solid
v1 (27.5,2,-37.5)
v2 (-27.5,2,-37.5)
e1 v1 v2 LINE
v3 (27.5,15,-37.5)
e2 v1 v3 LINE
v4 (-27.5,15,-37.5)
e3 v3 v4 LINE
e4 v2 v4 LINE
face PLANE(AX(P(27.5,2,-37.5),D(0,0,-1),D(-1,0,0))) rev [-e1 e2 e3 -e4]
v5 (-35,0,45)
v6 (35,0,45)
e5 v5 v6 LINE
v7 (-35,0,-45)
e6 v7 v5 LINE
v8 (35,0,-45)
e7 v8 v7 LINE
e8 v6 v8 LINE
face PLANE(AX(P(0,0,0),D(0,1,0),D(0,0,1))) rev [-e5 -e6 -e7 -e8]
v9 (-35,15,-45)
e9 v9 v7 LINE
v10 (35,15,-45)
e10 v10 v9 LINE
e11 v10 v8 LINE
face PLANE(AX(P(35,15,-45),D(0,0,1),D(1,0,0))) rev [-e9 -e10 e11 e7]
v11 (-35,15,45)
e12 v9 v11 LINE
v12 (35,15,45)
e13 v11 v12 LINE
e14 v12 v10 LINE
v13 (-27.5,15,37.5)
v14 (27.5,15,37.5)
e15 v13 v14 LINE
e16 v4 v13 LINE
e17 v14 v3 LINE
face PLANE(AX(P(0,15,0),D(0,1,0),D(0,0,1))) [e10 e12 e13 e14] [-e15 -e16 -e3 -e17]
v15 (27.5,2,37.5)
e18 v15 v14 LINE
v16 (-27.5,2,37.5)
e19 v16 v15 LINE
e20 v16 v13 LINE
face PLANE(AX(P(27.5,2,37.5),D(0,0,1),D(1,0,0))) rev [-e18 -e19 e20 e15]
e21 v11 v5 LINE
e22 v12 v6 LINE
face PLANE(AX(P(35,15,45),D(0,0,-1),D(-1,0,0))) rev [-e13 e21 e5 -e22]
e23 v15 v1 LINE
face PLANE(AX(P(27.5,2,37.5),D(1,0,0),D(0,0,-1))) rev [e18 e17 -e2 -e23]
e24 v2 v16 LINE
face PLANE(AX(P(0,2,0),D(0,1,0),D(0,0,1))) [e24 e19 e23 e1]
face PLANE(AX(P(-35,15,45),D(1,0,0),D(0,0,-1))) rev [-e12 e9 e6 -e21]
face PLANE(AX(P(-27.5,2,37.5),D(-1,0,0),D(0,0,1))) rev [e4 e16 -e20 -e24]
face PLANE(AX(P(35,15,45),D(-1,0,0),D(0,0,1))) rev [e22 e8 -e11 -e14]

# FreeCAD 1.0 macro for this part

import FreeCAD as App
import Part
import Sketcher

V = App.Vector


def add_polygon(sketch, points):
    """Adds a closed chain of lines whose ends are joined by coincident constraints."""
    first, n = sketch.GeometryCount, len(points)
    for a, b in zip(points, points[1:] + points[:1]):
        sketch.addGeometry(Part.LineSegment(App.Vector(*a, 0), App.Vector(*b, 0)), False)
    for i in range(n):
        sketch.addConstraint(Sketcher.Constraint("Coincident", first + i, 2, first + (i + 1) % n, 1))

doc = App.newDocument("Part")
body = doc.addObject("PartDesign::Body", "Body")

# Sketch on XZ plane
sketch1 = body.newObject("Sketcher::SketchObject", "Sketch")
sketch1.AttachmentSupport = (doc.getObject("XZ_Plane"), [""])
sketch1.MapMode = "FlatFace"
add_polygon(sketch1, [(-35, -45), (-35, 45), (35, 45), (35, -45)])  # lines 0-3
sketch1.addConstraint([
    Sketcher.Constraint("Vertical", 0),
    Sketcher.Constraint("Horizontal", 1),
    Sketcher.Constraint("Vertical", 2),
    Sketcher.Constraint("Horizontal", 3),
    Sketcher.Constraint("Symmetric", 0, 2, 2, 2, -1, 1),
    Sketcher.Constraint("DistanceX", 1, 1, 1, 2, 70.0),
    Sketcher.Constraint("DistanceY", 0, 1, 0, 2, 90.0),
])
pad1 = body.newObject("PartDesign::Pad", "Pad")
pad1.Profile = sketch1
pad1.Length = 15
pad1.Reversed = True

# Sketch on XZ plane
sketch2 = body.newObject("Sketcher::SketchObject", "Sketch001")
sketch2.AttachmentSupport = (doc.getObject("XZ_Plane"), [""])
sketch2.MapMode = "FlatFace"
sketch2.AttachmentOffset = App.Placement(V(0, 0, -15), App.Rotation())
add_polygon(sketch2, [(-28, -38), (-28, 38), (28, 38), (28, -38)])  # lines 0-3
sketch2.addConstraint([
    Sketcher.Constraint("Vertical", 0),
    Sketcher.Constraint("Horizontal", 1),
    Sketcher.Constraint("Vertical", 2),
    Sketcher.Constraint("Horizontal", 3),
    Sketcher.Constraint("Symmetric", 0, 2, 2, 2, -1, 1),
    Sketcher.Constraint("DistanceX", 1, 1, 1, 2, 55.0),
    Sketcher.Constraint("DistanceY", 0, 1, 0, 2, 75.0),
])
pocket1 = body.newObject("PartDesign::Pocket", "Pocket")
pocket1.Profile = sketch2
pocket1.Length = 13
pocket1.Reversed = True

doc.recompute()
